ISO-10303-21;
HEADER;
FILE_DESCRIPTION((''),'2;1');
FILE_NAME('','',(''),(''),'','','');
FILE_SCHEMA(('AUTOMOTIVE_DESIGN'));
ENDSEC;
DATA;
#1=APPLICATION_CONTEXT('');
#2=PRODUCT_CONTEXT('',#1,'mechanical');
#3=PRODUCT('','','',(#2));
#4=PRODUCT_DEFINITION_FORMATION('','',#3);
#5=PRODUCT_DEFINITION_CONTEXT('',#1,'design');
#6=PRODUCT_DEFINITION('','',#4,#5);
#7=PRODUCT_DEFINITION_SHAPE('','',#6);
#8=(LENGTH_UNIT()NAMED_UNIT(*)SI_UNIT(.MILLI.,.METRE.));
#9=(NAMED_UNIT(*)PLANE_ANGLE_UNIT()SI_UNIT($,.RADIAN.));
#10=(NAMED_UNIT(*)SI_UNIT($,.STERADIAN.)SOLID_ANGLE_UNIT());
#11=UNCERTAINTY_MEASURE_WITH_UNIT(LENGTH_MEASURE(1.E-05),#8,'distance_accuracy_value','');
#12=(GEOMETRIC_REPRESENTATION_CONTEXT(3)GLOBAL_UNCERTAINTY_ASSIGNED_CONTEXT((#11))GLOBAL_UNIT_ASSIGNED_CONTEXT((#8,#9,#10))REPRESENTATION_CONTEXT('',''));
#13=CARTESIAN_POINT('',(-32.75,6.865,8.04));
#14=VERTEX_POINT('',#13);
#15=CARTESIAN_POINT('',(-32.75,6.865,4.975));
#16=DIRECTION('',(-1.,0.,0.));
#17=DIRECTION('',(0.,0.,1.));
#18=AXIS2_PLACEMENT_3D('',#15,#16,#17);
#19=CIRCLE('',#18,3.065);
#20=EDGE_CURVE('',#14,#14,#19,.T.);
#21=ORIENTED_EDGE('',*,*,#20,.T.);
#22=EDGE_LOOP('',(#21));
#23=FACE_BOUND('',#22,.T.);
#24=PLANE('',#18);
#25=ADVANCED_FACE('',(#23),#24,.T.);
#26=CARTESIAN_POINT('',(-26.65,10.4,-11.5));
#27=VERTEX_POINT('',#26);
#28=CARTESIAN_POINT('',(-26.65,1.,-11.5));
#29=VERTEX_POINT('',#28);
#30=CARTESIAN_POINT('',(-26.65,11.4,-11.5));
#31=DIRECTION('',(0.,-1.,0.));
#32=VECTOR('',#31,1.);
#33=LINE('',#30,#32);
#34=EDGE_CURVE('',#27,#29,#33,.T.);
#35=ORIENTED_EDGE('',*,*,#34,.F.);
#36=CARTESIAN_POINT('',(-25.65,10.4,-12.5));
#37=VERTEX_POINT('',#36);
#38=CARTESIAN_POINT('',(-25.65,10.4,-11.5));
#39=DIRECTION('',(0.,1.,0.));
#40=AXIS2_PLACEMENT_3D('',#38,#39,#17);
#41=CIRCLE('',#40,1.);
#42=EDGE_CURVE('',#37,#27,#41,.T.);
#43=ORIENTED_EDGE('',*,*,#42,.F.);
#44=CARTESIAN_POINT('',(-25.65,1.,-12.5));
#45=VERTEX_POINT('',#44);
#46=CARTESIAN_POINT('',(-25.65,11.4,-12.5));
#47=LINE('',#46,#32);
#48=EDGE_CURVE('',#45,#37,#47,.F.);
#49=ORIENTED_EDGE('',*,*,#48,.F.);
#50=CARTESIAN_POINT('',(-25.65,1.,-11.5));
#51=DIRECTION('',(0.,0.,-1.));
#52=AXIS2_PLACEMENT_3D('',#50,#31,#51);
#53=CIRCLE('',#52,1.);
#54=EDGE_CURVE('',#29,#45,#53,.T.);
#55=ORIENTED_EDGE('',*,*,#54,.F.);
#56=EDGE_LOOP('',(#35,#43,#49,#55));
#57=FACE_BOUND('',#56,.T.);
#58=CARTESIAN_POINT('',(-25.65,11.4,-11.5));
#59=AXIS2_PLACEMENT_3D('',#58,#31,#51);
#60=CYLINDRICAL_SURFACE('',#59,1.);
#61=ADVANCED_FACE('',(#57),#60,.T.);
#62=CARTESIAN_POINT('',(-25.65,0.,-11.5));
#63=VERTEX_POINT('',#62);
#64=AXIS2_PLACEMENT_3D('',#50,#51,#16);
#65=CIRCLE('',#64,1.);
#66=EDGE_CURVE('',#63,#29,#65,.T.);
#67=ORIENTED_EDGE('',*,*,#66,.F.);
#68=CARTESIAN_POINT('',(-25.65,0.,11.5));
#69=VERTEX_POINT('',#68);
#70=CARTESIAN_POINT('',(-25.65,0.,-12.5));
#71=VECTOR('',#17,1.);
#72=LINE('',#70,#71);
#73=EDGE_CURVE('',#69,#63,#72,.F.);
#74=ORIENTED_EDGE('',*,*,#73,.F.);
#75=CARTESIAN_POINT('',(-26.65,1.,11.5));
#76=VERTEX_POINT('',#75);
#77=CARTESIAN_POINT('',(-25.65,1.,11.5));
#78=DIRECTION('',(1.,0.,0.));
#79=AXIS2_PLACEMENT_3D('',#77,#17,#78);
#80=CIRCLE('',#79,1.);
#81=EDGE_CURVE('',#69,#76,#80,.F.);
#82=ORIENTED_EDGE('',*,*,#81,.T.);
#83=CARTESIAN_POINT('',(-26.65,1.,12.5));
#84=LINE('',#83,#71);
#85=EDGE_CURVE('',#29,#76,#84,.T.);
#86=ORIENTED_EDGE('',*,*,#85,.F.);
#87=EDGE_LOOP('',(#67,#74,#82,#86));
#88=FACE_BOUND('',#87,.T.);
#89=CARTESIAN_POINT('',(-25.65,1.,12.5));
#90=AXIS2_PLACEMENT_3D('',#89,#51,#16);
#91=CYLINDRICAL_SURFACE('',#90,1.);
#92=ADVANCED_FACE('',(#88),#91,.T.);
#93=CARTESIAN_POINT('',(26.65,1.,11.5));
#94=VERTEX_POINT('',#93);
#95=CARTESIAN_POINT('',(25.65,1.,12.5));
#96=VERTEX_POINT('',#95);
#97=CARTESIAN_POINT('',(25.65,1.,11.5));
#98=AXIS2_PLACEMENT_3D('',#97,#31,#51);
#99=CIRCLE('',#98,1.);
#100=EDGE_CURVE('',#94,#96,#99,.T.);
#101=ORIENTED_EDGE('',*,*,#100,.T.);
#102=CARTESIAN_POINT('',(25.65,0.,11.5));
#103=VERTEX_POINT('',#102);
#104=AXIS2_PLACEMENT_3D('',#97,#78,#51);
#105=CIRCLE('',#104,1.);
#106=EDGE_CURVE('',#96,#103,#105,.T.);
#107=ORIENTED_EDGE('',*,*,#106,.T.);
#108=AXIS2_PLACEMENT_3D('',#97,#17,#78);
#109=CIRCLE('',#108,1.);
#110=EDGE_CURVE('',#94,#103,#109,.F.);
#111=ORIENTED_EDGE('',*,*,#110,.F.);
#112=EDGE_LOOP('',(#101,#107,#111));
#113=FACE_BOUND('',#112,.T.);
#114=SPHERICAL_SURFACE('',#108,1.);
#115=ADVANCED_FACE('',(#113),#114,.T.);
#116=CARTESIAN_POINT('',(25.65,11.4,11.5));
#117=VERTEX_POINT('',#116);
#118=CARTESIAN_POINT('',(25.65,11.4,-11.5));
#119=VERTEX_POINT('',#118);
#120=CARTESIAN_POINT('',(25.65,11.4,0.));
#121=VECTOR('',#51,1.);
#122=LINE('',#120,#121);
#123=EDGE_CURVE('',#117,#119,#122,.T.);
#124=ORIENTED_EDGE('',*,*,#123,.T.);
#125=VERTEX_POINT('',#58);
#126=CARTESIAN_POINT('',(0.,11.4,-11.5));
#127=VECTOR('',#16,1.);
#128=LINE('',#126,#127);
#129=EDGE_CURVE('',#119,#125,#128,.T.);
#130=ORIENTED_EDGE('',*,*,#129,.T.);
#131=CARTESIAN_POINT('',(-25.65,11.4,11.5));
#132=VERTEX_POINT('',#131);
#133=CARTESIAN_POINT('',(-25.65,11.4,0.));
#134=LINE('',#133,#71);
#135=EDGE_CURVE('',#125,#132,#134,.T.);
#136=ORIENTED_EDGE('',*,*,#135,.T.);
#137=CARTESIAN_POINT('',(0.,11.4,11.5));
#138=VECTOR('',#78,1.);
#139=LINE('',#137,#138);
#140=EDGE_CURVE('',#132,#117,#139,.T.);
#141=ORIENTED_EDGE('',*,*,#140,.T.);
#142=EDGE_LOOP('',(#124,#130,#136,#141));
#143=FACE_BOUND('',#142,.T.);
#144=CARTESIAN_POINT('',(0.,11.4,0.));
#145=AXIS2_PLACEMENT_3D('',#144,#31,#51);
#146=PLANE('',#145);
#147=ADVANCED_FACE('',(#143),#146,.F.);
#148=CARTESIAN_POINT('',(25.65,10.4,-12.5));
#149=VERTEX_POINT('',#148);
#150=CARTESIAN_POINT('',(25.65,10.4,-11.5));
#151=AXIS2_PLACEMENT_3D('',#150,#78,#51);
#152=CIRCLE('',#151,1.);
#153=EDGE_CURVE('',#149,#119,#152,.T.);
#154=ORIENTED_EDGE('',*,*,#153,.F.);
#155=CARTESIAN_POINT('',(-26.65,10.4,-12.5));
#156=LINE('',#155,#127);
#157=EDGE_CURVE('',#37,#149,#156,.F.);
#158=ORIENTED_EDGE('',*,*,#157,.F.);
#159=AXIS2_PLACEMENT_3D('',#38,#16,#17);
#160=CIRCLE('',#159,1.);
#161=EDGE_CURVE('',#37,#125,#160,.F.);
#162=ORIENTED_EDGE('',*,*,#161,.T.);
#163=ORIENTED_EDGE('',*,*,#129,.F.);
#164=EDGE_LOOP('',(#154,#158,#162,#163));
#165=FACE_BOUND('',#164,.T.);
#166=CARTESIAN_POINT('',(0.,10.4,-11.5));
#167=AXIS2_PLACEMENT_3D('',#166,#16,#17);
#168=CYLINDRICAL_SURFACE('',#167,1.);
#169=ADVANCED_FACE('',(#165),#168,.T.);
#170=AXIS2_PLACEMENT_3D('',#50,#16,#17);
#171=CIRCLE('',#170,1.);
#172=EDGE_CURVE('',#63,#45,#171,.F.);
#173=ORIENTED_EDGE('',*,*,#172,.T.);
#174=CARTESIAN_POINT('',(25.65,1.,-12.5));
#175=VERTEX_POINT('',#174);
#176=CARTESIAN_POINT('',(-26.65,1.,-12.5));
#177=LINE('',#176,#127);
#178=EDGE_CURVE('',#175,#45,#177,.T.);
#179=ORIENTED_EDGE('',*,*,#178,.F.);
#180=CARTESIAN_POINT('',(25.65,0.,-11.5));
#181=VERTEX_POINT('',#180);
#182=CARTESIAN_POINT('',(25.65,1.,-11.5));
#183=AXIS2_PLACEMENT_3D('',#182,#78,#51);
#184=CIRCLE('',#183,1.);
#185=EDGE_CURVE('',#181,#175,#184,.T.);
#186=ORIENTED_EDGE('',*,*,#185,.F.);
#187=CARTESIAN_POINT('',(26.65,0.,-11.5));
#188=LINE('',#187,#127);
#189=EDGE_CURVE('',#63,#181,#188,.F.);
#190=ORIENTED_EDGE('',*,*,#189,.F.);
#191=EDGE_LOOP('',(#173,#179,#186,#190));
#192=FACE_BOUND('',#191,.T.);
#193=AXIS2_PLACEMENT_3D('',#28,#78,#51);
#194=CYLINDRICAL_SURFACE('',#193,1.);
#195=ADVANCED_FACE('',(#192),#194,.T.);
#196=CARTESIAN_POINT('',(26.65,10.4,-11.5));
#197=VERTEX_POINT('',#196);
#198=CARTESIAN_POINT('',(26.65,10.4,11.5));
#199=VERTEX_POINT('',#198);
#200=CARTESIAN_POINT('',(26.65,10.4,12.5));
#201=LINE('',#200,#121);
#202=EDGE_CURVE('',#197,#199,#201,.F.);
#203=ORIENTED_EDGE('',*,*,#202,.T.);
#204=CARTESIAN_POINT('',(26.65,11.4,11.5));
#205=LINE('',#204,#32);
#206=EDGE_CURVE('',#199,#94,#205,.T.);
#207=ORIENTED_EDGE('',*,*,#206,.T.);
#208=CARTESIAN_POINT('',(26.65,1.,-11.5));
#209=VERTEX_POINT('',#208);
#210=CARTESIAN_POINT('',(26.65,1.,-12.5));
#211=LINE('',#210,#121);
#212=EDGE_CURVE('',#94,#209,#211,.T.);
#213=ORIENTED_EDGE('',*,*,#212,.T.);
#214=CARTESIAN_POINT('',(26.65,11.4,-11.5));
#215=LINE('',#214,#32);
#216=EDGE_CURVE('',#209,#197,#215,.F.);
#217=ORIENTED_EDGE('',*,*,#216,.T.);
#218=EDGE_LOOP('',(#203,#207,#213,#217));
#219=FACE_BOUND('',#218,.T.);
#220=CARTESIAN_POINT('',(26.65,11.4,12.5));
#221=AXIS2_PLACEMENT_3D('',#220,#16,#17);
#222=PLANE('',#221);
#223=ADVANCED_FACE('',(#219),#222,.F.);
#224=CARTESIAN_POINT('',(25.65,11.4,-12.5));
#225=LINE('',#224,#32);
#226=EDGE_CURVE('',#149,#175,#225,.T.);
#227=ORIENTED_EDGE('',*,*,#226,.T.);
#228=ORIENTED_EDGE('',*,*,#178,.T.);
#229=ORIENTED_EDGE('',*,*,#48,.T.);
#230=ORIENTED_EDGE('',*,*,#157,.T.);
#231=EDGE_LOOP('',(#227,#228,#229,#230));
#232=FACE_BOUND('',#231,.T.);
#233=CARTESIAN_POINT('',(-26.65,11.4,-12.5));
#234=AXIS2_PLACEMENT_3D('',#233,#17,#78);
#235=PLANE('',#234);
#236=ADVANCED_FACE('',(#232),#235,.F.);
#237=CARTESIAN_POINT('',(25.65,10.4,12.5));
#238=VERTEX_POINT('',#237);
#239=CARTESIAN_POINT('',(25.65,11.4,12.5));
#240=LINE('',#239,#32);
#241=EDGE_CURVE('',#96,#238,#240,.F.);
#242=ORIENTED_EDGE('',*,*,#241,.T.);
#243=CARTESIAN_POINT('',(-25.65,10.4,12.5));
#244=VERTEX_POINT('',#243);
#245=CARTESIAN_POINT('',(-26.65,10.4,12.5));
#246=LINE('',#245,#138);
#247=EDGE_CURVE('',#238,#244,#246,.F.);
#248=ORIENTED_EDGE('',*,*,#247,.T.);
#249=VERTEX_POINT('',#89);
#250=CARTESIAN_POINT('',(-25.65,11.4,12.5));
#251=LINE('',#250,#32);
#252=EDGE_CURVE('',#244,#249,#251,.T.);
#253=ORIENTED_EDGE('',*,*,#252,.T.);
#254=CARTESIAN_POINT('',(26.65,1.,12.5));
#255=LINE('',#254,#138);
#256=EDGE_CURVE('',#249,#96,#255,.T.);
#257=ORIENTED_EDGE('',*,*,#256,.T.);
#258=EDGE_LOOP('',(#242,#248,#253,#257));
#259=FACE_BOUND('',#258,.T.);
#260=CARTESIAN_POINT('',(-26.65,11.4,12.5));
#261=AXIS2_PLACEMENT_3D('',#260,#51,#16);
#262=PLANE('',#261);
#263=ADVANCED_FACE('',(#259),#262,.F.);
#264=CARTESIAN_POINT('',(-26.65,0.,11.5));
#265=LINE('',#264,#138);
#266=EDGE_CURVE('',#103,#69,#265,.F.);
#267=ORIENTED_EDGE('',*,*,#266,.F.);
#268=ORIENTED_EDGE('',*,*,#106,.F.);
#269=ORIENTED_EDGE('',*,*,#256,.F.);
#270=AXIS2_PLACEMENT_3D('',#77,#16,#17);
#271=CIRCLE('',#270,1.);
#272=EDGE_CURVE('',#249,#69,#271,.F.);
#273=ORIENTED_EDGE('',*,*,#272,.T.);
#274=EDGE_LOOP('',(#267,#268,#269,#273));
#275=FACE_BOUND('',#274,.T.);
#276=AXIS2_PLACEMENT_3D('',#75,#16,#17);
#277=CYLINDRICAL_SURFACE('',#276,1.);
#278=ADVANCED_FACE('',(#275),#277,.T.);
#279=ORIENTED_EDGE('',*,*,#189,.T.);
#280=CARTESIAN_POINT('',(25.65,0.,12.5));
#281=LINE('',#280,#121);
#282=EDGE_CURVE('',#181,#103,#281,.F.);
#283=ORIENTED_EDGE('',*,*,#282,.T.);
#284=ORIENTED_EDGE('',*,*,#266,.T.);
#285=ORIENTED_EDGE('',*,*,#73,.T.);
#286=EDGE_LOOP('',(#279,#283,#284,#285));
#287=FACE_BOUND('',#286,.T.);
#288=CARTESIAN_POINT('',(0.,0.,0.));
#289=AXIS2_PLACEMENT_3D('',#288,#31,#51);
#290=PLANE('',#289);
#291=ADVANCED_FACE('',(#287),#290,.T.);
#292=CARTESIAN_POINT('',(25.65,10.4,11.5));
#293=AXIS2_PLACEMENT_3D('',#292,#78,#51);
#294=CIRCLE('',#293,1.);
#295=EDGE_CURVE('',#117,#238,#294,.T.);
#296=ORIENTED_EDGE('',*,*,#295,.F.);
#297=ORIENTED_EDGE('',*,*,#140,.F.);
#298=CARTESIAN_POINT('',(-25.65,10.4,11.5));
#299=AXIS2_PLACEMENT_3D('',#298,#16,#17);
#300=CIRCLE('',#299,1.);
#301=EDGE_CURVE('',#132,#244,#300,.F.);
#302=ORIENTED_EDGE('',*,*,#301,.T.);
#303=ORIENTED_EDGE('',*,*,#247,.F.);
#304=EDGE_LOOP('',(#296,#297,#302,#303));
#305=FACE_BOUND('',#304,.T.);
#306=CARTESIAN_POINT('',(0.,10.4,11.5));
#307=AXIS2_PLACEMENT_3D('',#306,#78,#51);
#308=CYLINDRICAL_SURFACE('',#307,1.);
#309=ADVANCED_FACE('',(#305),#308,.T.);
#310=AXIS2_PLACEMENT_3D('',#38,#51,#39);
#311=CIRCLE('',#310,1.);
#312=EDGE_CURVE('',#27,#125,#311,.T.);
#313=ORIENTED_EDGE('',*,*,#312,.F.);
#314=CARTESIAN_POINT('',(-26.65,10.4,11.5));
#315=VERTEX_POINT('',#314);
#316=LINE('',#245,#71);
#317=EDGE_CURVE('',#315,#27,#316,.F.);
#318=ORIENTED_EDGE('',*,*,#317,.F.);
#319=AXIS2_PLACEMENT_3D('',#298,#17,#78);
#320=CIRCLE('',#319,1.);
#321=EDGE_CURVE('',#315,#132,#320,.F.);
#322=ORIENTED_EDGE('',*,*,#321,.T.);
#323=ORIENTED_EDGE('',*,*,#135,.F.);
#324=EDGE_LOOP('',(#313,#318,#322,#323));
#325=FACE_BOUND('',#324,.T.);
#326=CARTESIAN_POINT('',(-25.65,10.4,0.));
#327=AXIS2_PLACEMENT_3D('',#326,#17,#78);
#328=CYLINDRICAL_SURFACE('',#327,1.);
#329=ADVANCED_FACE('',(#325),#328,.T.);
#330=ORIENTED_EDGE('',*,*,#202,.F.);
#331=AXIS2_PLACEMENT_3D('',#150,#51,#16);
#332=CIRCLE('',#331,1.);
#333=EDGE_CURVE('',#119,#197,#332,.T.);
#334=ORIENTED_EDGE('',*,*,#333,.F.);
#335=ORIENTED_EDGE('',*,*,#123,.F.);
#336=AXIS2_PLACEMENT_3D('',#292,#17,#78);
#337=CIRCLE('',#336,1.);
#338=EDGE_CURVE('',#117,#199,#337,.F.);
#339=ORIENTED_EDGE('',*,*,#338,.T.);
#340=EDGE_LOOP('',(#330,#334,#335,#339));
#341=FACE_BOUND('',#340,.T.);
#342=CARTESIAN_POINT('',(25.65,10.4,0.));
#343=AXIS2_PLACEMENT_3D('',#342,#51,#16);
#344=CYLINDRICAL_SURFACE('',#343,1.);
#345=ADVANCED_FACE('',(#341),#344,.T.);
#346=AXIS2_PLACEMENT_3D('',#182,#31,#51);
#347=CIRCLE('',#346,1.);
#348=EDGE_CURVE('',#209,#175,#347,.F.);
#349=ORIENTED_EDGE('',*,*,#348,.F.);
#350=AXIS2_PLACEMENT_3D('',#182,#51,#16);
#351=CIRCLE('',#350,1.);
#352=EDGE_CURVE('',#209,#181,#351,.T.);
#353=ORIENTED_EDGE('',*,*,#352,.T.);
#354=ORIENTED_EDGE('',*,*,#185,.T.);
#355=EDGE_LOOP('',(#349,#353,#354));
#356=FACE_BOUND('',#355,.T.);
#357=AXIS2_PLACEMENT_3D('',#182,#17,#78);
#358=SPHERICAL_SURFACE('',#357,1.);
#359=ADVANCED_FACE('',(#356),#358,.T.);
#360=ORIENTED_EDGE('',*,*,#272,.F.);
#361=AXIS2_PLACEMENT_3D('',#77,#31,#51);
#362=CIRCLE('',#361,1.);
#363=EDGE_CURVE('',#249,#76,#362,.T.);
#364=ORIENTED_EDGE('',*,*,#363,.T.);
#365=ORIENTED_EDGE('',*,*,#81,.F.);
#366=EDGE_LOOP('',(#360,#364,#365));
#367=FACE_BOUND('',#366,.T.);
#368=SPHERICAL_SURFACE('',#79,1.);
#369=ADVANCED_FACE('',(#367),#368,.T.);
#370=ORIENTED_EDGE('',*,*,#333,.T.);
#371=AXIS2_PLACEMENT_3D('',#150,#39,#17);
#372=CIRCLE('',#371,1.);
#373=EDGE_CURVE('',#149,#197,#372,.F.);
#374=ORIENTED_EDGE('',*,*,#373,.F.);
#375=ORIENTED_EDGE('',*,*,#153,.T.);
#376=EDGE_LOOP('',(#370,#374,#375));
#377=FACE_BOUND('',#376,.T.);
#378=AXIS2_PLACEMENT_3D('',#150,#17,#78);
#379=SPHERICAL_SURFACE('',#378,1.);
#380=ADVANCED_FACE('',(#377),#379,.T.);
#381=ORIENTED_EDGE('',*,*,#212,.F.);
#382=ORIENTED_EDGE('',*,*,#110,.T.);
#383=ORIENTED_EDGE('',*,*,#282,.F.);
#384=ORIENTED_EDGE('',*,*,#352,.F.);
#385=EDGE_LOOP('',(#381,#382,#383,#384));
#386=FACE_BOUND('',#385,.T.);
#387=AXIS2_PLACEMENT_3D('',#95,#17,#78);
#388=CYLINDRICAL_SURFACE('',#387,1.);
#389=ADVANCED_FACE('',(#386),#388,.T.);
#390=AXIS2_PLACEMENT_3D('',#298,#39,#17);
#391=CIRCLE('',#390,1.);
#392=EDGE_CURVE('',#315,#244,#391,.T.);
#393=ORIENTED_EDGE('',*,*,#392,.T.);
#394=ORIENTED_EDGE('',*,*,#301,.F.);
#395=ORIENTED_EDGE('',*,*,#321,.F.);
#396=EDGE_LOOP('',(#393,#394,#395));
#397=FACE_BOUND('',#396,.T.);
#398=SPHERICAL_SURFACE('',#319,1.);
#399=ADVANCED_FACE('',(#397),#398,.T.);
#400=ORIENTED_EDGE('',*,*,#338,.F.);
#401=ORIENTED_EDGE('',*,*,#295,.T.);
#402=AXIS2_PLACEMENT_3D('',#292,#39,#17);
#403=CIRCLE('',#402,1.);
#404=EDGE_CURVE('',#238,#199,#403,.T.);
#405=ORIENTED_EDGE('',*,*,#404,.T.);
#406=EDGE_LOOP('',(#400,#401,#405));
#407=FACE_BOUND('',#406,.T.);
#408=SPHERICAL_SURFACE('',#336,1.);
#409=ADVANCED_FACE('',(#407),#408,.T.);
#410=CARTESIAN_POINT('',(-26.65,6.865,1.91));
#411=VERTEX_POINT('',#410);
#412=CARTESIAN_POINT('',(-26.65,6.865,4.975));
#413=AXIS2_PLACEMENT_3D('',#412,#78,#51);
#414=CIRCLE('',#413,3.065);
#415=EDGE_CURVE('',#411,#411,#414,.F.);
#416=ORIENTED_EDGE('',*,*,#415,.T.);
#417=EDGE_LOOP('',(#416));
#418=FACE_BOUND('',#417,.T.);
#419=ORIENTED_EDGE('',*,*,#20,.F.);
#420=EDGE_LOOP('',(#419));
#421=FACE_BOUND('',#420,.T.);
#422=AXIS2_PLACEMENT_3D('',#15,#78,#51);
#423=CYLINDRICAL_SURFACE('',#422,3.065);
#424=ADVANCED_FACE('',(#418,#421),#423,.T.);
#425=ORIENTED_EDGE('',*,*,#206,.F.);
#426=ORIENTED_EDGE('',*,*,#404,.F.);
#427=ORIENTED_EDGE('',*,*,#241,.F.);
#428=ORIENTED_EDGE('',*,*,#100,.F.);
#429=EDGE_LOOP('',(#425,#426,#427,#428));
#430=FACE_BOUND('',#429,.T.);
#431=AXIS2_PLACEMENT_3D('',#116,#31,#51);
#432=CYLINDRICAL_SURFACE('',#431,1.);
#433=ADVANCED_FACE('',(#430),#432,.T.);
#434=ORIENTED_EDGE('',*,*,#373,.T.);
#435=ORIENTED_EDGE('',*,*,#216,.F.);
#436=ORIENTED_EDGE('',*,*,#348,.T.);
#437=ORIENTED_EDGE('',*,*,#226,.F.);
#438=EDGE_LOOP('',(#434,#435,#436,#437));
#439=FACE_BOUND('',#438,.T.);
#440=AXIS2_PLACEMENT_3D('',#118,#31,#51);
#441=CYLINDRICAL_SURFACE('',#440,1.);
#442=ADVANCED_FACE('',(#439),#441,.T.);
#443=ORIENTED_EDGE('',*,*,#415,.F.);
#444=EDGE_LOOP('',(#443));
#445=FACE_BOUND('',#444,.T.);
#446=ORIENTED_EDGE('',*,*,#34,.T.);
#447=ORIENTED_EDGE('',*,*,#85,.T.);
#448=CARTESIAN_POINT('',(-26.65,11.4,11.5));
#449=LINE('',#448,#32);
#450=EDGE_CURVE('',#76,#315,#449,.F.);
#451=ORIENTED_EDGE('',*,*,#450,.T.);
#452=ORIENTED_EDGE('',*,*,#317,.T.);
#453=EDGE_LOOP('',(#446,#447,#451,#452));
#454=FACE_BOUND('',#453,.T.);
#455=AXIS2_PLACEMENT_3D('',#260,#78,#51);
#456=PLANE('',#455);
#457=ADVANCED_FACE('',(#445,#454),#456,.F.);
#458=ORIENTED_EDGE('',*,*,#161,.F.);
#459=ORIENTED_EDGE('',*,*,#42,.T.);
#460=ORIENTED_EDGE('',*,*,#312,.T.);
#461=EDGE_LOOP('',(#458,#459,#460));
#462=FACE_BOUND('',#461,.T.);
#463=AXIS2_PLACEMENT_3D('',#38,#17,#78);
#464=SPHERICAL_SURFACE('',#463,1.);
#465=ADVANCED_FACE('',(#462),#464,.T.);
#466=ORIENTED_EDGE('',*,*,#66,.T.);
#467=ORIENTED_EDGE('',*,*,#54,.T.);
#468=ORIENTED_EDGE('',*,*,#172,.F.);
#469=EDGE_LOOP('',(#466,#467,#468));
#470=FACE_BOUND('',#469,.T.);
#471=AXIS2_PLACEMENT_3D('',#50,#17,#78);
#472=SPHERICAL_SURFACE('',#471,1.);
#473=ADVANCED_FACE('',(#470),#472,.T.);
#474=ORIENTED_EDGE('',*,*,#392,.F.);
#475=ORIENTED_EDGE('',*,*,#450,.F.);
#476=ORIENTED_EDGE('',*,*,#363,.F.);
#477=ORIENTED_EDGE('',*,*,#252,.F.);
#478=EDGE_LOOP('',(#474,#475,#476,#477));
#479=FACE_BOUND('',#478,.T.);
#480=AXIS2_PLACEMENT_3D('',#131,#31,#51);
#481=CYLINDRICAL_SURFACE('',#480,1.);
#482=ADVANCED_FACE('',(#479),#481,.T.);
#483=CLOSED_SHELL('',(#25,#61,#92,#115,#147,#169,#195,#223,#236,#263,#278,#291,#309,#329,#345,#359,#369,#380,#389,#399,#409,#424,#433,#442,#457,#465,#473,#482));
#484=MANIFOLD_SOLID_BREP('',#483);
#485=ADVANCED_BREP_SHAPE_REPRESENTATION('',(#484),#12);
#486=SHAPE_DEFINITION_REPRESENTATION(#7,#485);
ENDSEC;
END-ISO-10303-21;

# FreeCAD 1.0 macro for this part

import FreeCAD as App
import Part
import Sketcher
from FreeCAD import Vector

doc = App.newDocument("Part")
params = doc.addObject("Spreadsheet::Sheet", "Params")
for row, (alias, value) in enumerate([
    ("sketch1_height", "25 mm"),
    ("sketch1_width", "53.3 mm"),
    ("pad1_length", "11.4 mm"),
    ("fillet_radius", "1 mm"),
    ("sketch2_diameter", "6.13 mm"),
    ("pad2_length", "6.1 mm"),
], start=1):
    params.set(f"A{row}", alias)
    params.set(f"B{row}", "=" + value)
    params.setAlias(f"B{row}", alias)

body = doc.addObject("PartDesign::Body", "Body")

sketch1 = body.newObject("Sketcher::SketchObject", "Sketch")
sketch1.AttachmentSupport = (doc.getObject("XZ_Plane"), [""])
sketch1.MapMode = "FlatFace"
sketch1.addGeometry([
    Part.LineSegment(Vector(-27, -12, 0), Vector(-27, 12, 0)),
    Part.LineSegment(Vector(-27, 12, 0), Vector(27, 12, 0)),
    Part.LineSegment(Vector(27, 12, 0), Vector(27, -12, 0)),
    Part.LineSegment(Vector(27, -12, 0), Vector(-27, -12, 0)),
], False)
sketch1.addConstraint([
    Sketcher.Constraint("Coincident", 0, 2, 1, 1),
    Sketcher.Constraint("Coincident", 1, 2, 2, 1),
    Sketcher.Constraint("Coincident", 2, 2, 3, 1),
    Sketcher.Constraint("Coincident", 3, 2, 0, 1),
    Sketcher.Constraint("Vertical", 0),
    Sketcher.Constraint("Horizontal", 1),
    Sketcher.Constraint("Vertical", 2),
    Sketcher.Constraint("Horizontal", 3),
    Sketcher.Constraint("Symmetric", 0, 2, 2, 2, -1, 1),
    Sketcher.Constraint("DistanceY", 0, 1, 0, 2, 25.0),
    Sketcher.Constraint("DistanceX", 1, 1, 1, 2, 53.3),
])
sketch1.setExpression("Constraints[9]", "Params.sketch1_height")
sketch1.setExpression("Constraints[10]", "Params.sketch1_width")
pad1 = body.newObject("PartDesign::Pad", "Pad")
pad1.Profile = sketch1
pad1.setExpression("Length", "Params.pad1_length")
pad1.Reversed = True
doc.recompute()

fillet = body.newObject("PartDesign::Fillet", "Fillet")
fillet.Base = (pad1, ["Edge1"])
fillet.UseAllEdges = True
fillet.setExpression("Radius", "Params.fillet_radius")

sketch2 = body.newObject("Sketcher::SketchObject", "Sketch001")
sketch2.AttachmentSupport = (doc.getObject("YZ_Plane"), [""])
sketch2.MapMode = "FlatFace"
sketch2.AttachmentOffset = App.Placement(Vector(0, 0, -26.65), App.Rotation())
sketch2.addGeometry(Part.Circle(Vector(6.9, 5, 0), Vector(0, 0, 1), 3.1), False)
sketch2.addConstraint([
    Sketcher.Constraint("Diameter", 0, 6.13),
    Sketcher.Constraint("DistanceX", -1, 1, 0, 3, 6.865),
    Sketcher.Constraint("DistanceY", -1, 1, 0, 3, 4.975),
])
sketch2.setExpression("Constraints[0]", "Params.sketch2_diameter")
pad2 = body.newObject("PartDesign::Pad", "Pad001")
pad2.Profile = sketch2
pad2.setExpression("Length", "Params.pad2_length")
pad2.Reversed = True

doc.recompute()
